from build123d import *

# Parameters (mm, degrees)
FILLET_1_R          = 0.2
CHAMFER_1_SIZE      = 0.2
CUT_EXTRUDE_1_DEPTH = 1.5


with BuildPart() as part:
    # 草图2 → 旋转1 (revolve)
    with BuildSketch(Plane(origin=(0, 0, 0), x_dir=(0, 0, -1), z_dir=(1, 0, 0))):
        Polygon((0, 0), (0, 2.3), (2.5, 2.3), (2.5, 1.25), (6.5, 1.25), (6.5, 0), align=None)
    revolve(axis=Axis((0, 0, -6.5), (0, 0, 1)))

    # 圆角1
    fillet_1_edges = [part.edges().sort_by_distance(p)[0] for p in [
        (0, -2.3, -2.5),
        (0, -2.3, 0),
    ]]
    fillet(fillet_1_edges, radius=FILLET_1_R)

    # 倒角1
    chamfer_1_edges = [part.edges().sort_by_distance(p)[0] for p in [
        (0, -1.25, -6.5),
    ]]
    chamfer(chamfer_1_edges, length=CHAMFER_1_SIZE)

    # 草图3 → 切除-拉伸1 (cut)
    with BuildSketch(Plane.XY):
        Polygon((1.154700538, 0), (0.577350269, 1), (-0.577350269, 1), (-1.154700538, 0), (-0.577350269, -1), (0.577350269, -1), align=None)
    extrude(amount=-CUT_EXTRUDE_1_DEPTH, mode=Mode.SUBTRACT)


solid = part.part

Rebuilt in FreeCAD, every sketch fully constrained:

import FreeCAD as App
import Part
import Sketcher
Q = App.Units.Quantity


def edges_at(feature, points):
    """Names of the edges that pass closest to the given points."""
    edges = feature.Shape.Edges
    near = lambda p: min(range(len(edges)), key=lambda i: edges[i].distToShape(Part.Vertex(*p))[0])
    return sorted({f"Edge{near(p) + 1}" for p in points})

doc = App.newDocument("Part")
body = doc.addObject("PartDesign::Body", "Body")

# Sketch on YZ plane
sketch1 = body.newObject("Sketcher::SketchObject", "Sketch")
sketch1.AttachmentSupport = (doc.getObject("YZ_Plane"), [""])
sketch1.MapMode = "FlatFace"
sketch1.addGeometry([
    Part.LineSegment(App.Vector(2.3, 0, 0), App.Vector(0, 0, 0)),  # 0
    Part.LineSegment(App.Vector(0, 0, 0), App.Vector(0, -6.5, 0)),  # 1
    Part.LineSegment(App.Vector(0, -6.5, 0), App.Vector(1.2, -6.5, 0)),  # 2
    Part.LineSegment(App.Vector(1.2, -6.5, 0), App.Vector(1.2, -2.5, 0)),  # 3
    Part.LineSegment(App.Vector(1.2, -2.5, 0), App.Vector(2.3, -2.5, 0)),  # 4
    Part.LineSegment(App.Vector(2.3, -2.5, 0), App.Vector(2.3, 0, 0)),  # 5
], False)
sketch1.addConstraint([
    Sketcher.Constraint("Coincident", 0, 2, 1, 1),
    Sketcher.Constraint("Coincident", 1, 2, 2, 1),
    Sketcher.Constraint("Coincident", 2, 2, 3, 1),
    Sketcher.Constraint("Coincident", 3, 2, 4, 1),
    Sketcher.Constraint("Coincident", 4, 2, 5, 1),
    Sketcher.Constraint("Coincident", 5, 2, 0, 1),
    Sketcher.Constraint("Horizontal", 0),
    Sketcher.Constraint("Vertical", 1),
    Sketcher.Constraint("Horizontal", 2),
    Sketcher.Constraint("Vertical", 3),
    Sketcher.Constraint("Horizontal", 4),
    Sketcher.Constraint("Vertical", 5),
    Sketcher.Constraint("Coincident", 0, 2, -1, 1),
    Sketcher.Constraint("DistanceY", 3, 1, 3, 2, Q("4 mm")),
    Sketcher.Constraint("DistanceX", 0, 2, 0, 1, Q("2.3 mm")),
    Sketcher.Constraint("DistanceY", 1, 2, 1, 1, Q("6.5 mm")),
    Sketcher.Constraint("DistanceX", 2, 1, 2, 2, Q("1.25 mm")),
])
revolution = body.newObject("PartDesign::Revolution", "Revolution")
revolution.Profile = sketch1
revolution.ReferenceAxis = (sketch1, ["V_Axis"])
revolution.Angle = 360
doc.recompute()

fillet = body.newObject("PartDesign::Fillet", "Fillet")
fillet.Base = (revolution, edges_at(revolution, [(0, -2.3, -2.5), (0, -2.3, 0)]))
fillet.Radius = 0.2
doc.recompute()

chamfer = body.newObject("PartDesign::Chamfer", "Chamfer")
chamfer.Base = (fillet, edges_at(fillet, [(0, -1.25, -6.5)]))
chamfer.Size = 0.2

# Sketch on XY plane
sketch2 = body.newObject("Sketcher::SketchObject", "Sketch001")
sketch2.AttachmentSupport = (doc.getObject("XY_Plane"), [""])
sketch2.MapMode = "FlatFace"
sketch2.addGeometry([
    Part.LineSegment(App.Vector(1.2, 0, 0), App.Vector(0.6, 1, 0)),  # 0
    Part.LineSegment(App.Vector(0.6, 1, 0), App.Vector(-0.6, 1, 0)),  # 1
    Part.LineSegment(App.Vector(-0.6, 1, 0), App.Vector(-1.2, 0, 0)),  # 2
    Part.LineSegment(App.Vector(-1.2, 0, 0), App.Vector(-0.6, -1, 0)),  # 3
    Part.LineSegment(App.Vector(-0.6, -1, 0), App.Vector(0.6, -1, 0)),  # 4
    Part.LineSegment(App.Vector(0.6, -1, 0), App.Vector(1.2, 0, 0)),  # 5
], False)
sketch2.addConstraint([
    Sketcher.Constraint("Coincident", 0, 2, 1, 1),
    Sketcher.Constraint("Coincident", 1, 2, 2, 1),
    Sketcher.Constraint("Coincident", 2, 2, 3, 1),
    Sketcher.Constraint("Coincident", 3, 2, 4, 1),
    Sketcher.Constraint("Coincident", 4, 2, 5, 1),
    Sketcher.Constraint("Coincident", 5, 2, 0, 1),
    Sketcher.Constraint("Horizontal", 1),
    Sketcher.Constraint("Horizontal", 4),
    Sketcher.Constraint("Symmetric", 0, 2, 3, 2, -1, 1),
    Sketcher.Constraint("Symmetric", 2, 2, 5, 2, -1, 1),
    Sketcher.Constraint("PointOnObject", 2, 2, -1),
    Sketcher.Constraint("Parallel", 2, 5),
    Sketcher.Constraint("Vertical", 1, 2, 3, 2),
    Sketcher.Constraint("Angle", 0, Q("120 deg")),
    Sketcher.Constraint("DistanceY", -1, 1, 0, 2, Q("1 mm")),
    Sketcher.Constraint("DistanceX", 1, 2, 1, 1, Q("1.154701 mm")),
])
pocket1 = body.newObject("PartDesign::Pocket", "Pocket")
pocket1.Profile = sketch2
pocket1.Length = 1.5

doc.recompute()
